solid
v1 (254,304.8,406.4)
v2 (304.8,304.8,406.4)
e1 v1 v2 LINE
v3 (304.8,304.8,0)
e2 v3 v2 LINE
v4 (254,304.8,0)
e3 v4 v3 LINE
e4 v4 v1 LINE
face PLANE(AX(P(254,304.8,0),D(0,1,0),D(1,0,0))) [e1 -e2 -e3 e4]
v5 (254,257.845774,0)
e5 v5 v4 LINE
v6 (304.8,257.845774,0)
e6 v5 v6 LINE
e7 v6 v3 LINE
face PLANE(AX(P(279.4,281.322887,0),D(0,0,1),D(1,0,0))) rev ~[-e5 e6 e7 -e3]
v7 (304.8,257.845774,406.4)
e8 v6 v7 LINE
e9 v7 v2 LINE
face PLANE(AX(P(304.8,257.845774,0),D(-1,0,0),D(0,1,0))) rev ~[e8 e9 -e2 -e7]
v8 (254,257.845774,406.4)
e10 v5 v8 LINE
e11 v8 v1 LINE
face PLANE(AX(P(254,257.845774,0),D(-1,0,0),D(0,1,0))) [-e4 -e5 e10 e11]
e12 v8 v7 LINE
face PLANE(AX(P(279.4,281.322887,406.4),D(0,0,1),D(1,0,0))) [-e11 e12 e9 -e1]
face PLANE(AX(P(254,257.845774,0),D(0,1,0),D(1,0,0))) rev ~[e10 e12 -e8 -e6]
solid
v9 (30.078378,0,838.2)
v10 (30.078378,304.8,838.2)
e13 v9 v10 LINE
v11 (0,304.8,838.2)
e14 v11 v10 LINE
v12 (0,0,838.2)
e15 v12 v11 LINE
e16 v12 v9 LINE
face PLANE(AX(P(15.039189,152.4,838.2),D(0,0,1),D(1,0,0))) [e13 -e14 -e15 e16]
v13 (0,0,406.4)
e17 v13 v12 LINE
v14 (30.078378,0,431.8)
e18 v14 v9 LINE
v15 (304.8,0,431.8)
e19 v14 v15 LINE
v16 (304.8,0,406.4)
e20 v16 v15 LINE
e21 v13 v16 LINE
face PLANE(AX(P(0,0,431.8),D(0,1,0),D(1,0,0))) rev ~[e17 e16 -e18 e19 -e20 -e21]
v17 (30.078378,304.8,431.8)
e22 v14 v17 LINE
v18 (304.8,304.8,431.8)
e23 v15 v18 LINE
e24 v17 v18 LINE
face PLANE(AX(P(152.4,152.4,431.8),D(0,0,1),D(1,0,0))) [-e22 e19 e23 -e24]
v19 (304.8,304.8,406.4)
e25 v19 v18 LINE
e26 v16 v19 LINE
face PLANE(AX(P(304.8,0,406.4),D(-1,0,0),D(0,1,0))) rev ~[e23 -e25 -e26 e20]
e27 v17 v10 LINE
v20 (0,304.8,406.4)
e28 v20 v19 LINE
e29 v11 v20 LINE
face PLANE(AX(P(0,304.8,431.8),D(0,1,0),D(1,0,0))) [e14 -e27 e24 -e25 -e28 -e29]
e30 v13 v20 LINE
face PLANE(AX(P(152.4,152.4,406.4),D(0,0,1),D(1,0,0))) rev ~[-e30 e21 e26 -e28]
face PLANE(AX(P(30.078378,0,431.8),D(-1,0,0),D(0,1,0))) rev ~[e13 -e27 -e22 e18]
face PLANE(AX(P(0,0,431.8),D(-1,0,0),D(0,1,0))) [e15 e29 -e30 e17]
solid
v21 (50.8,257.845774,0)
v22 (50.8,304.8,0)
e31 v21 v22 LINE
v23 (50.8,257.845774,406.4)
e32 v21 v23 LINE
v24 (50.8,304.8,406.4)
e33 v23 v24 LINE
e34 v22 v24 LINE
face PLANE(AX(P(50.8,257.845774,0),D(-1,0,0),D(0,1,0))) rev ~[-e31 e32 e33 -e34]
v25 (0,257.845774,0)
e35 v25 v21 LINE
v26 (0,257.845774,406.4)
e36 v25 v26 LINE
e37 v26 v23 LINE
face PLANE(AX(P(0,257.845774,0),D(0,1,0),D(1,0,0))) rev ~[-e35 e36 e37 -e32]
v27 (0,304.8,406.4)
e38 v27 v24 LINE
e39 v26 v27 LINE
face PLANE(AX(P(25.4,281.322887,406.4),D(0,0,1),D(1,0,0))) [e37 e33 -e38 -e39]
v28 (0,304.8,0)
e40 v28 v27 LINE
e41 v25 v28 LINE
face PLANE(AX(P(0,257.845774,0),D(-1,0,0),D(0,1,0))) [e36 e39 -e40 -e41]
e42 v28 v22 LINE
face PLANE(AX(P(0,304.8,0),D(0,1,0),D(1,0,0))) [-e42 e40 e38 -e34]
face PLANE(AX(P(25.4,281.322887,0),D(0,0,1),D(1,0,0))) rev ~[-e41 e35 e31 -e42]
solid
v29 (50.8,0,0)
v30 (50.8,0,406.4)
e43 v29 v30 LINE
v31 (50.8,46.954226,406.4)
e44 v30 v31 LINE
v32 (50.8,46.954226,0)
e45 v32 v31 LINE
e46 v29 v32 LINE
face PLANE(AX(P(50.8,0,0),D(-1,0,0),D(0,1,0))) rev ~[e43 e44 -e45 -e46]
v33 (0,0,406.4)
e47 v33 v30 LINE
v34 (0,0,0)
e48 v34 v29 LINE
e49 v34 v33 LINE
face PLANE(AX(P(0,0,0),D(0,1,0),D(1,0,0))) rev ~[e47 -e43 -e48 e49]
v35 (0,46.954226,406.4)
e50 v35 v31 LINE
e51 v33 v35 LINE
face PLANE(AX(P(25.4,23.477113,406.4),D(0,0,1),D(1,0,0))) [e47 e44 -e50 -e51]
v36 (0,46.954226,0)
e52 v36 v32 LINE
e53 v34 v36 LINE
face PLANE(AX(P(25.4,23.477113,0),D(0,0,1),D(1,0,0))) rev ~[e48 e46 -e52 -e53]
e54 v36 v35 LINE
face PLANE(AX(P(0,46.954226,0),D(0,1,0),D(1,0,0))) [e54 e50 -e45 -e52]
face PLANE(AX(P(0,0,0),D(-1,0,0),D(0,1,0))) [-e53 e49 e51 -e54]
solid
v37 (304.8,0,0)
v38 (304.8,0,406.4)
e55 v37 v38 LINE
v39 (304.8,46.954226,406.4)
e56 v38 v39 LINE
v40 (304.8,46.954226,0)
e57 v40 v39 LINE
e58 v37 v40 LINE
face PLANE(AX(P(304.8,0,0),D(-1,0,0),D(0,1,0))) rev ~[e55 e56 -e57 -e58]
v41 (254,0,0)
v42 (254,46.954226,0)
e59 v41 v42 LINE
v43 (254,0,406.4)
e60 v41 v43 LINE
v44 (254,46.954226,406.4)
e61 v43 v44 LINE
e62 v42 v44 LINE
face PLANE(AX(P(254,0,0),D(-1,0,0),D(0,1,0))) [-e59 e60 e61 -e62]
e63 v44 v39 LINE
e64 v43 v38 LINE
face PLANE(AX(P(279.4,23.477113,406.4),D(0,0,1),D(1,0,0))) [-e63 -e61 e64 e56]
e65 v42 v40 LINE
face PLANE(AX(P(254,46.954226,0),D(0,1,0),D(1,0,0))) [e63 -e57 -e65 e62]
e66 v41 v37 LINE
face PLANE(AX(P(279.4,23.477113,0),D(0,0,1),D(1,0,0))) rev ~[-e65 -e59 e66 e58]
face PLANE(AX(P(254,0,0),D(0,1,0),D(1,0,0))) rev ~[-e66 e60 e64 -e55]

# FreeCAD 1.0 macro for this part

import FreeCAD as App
import Part
import Sketcher
Q = App.Units.Quantity

doc = App.newDocument("Part")
body = doc.addObject("PartDesign::Body", "Body")
body.AllowCompound = True

# Sketch on XY plane
sketch1 = body.newObject("Sketcher::SketchObject", "Sketch")
sketch1.AttachmentSupport = (doc.getObject("XY_Plane"), [""])
sketch1.MapMode = "FlatFace"
sketch1.addGeometry([
    Part.LineSegment(App.Vector(254, 46.954226, 0), App.Vector(254, 0, 0)),  # 0
    Part.LineSegment(App.Vector(254, 0, 0), App.Vector(304.8, 0, 0)),  # 1
    Part.LineSegment(App.Vector(304.8, 0, 0), App.Vector(304.8, 46.954226, 0)),  # 2
    Part.LineSegment(App.Vector(304.8, 46.954226, 0), App.Vector(254, 46.954226, 0)),  # 3
    Part.LineSegment(App.Vector(0, 46.954226, 0), App.Vector(0, 0, 0)),  # 4
    Part.LineSegment(App.Vector(0, 0, 0), App.Vector(50.8, 0, 0)),  # 5
    Part.LineSegment(App.Vector(50.8, 0, 0), App.Vector(50.8, 46.954226, 0)),  # 6
    Part.LineSegment(App.Vector(50.8, 46.954226, 0), App.Vector(0, 46.954226, 0)),  # 7
    Part.LineSegment(App.Vector(0, 304.8, 0), App.Vector(0, 257.845774, 0)),  # 8
    Part.LineSegment(App.Vector(0, 257.845774, 0), App.Vector(50.8, 257.845774, 0)),  # 9
    Part.LineSegment(App.Vector(50.8, 257.845774, 0), App.Vector(50.8, 304.8, 0)),  # 10
    Part.LineSegment(App.Vector(50.8, 304.8, 0), App.Vector(0, 304.8, 0)),  # 11
    Part.LineSegment(App.Vector(254, 304.8, 0), App.Vector(254, 257.845774, 0)),  # 12
    Part.LineSegment(App.Vector(254, 257.845774, 0), App.Vector(304.8, 257.845774, 0)),  # 13
    Part.LineSegment(App.Vector(304.8, 257.845774, 0), App.Vector(304.8, 304.8, 0)),  # 14
    Part.LineSegment(App.Vector(304.8, 304.8, 0), App.Vector(254, 304.8, 0)),  # 15
], False)
sketch1.addConstraint([
    Sketcher.Constraint("Coincident", 0, 2, 1, 1),
    Sketcher.Constraint("Coincident", 1, 2, 2, 1),
    Sketcher.Constraint("Coincident", 2, 2, 3, 1),
    Sketcher.Constraint("Coincident", 3, 2, 0, 1),
    Sketcher.Constraint("Coincident", 4, 2, 5, 1),
    Sketcher.Constraint("Coincident", 5, 2, 6, 1),
    Sketcher.Constraint("Coincident", 6, 2, 7, 1),
    Sketcher.Constraint("Coincident", 7, 2, 4, 1),
    Sketcher.Constraint("Coincident", 8, 2, 9, 1),
    Sketcher.Constraint("Coincident", 9, 2, 10, 1),
    Sketcher.Constraint("Coincident", 10, 2, 11, 1),
    Sketcher.Constraint("Coincident", 11, 2, 8, 1),
    Sketcher.Constraint("Coincident", 12, 2, 13, 1),
    Sketcher.Constraint("Coincident", 13, 2, 14, 1),
    Sketcher.Constraint("Coincident", 14, 2, 15, 1),
    Sketcher.Constraint("Coincident", 15, 2, 12, 1),
    Sketcher.Constraint("Vertical", 0),
    Sketcher.Constraint("Horizontal", 1),
    Sketcher.Constraint("Vertical", 2),
    Sketcher.Constraint("Horizontal", 3),
    Sketcher.Constraint("Vertical", 4),
    Sketcher.Constraint("Horizontal", 5),
    Sketcher.Constraint("Vertical", 6),
    Sketcher.Constraint("Horizontal", 7),
    Sketcher.Constraint("Vertical", 8),
    Sketcher.Constraint("Horizontal", 9),
    Sketcher.Constraint("Vertical", 10),
    Sketcher.Constraint("Horizontal", 11),
    Sketcher.Constraint("Vertical", 12),
    Sketcher.Constraint("Horizontal", 13),
    Sketcher.Constraint("Vertical", 14),
    Sketcher.Constraint("Horizontal", 15),
    Sketcher.Constraint("Coincident", 4, 2, -1, 1),
    Sketcher.Constraint("PointOnObject", 0, 2, -1),
    Sketcher.Constraint("PointOnObject", 8, 2, -2),
    Sketcher.Constraint("Horizontal", 3, 2, 6, 2),
    Sketcher.Constraint("Horizontal", 9, 2, 12, 2),
    Sketcher.Constraint("Horizontal", 11, 2, 14, 2),
    Sketcher.Constraint("Vertical", 6, 2, 9, 2),
    Sketcher.Constraint("Vertical", 3, 2, 12, 2),
    Sketcher.Constraint("Vertical", 2, 2, 13, 2),
    Sketcher.Constraint("Equal", 3, 5),
    Sketcher.Constraint("Equal", 6, 8),
    Sketcher.Constraint("DistanceX", 1, 1, 1, 2, Q("2 in")),
    Sketcher.Constraint("DistanceX", -1, 1, 0, 2, Q("10 in")),
    Sketcher.Constraint("DistanceY", -1, 1, 10, 2, Q("12 in")),
    Sketcher.Constraint("DistanceY", 0, 2, 0, 1, Q("46.954226 mm")),
])
pad1 = body.newObject("PartDesign::Pad", "Pad")
pad1.Profile = sketch1
pad1.Length = Q("16 in")
body2 = doc.addObject("PartDesign::Body", "Body001")

# Sketch on XY plane
sketch2 = body2.newObject("Sketcher::SketchObject", "Sketch001")
sketch2.AttachmentSupport = (doc.getObject("XY_Plane001"), [""])
sketch2.MapMode = "FlatFace"
sketch2.AttachmentOffset = App.Placement(App.Vector(0, 0, 16 * 25.4), App.Rotation())
sketch2.addGeometry([
    Part.LineSegment(App.Vector(0, 304.8, 0), App.Vector(0, 0, 0)),
    Part.LineSegment(App.Vector(0, 0, 0), App.Vector(304.8, 0, 0)),
    Part.LineSegment(App.Vector(304.8, 0, 0), App.Vector(304.8, 304.8, 0)),
    Part.LineSegment(App.Vector(304.8, 304.8, 0), App.Vector(0, 304.8, 0)),
], False)
sketch2.addConstraint([
    Sketcher.Constraint("Coincident", 0, 2, 1, 1),
    Sketcher.Constraint("Coincident", 1, 2, 2, 1),
    Sketcher.Constraint("Coincident", 2, 2, 3, 1),
    Sketcher.Constraint("Coincident", 3, 2, 0, 1),
    Sketcher.Constraint("Vertical", 0),
    Sketcher.Constraint("Horizontal", 1),
    Sketcher.Constraint("Vertical", 2),
    Sketcher.Constraint("Horizontal", 3),
    Sketcher.Constraint("Coincident", 0, 2, -1, 1),
    Sketcher.Constraint("Equal", 3, 0),
    Sketcher.Constraint("DistanceX", 1, 1, 1, 2, Q("12 in")),
])
pad2 = body2.newObject("PartDesign::Pad", "Pad001")
pad2.Profile = sketch2
pad2.Length = Q("1 in")

# Sketch on XY plane
sketch3 = body2.newObject("Sketcher::SketchObject", "Sketch002")
sketch3.AttachmentSupport = (doc.getObject("XY_Plane001"), [""])
sketch3.MapMode = "FlatFace"
sketch3.AttachmentOffset = App.Placement(App.Vector(0, 0, 17 * 25.4), App.Rotation())
sketch3.addGeometry([
    Part.LineSegment(App.Vector(0, 304.8, 0), App.Vector(0, 0, 0)),
    Part.LineSegment(App.Vector(0, 0, 0), App.Vector(30.078378, 0, 0)),
    Part.LineSegment(App.Vector(30.078378, 0, 0), App.Vector(30.078378, 304.8, 0)),
    Part.LineSegment(App.Vector(30.078378, 304.8, 0), App.Vector(0, 304.8, 0)),
], False)
sketch3.addConstraint([
    Sketcher.Constraint("Coincident", 0, 2, 1, 1),
    Sketcher.Constraint("Coincident", 1, 2, 2, 1),
    Sketcher.Constraint("Coincident", 2, 2, 3, 1),
    Sketcher.Constraint("Coincident", 3, 2, 0, 1),
    Sketcher.Constraint("Vertical", 0),
    Sketcher.Constraint("Horizontal", 1),
    Sketcher.Constraint("Vertical", 2),
    Sketcher.Constraint("Horizontal", 3),
    Sketcher.Constraint("Coincident", 0, 2, -1, 1),
    Sketcher.Constraint("DistanceY", 0, 2, 0, 1, Q("12 in")),
    Sketcher.Constraint("DistanceX", 1, 1, 1, 2, Q("30.078378 mm")),
])
pad3 = body2.newObject("PartDesign::Pad", "Pad002")
pad3.Profile = sketch3
pad3.Length = Q("16 in")

doc.recompute()
